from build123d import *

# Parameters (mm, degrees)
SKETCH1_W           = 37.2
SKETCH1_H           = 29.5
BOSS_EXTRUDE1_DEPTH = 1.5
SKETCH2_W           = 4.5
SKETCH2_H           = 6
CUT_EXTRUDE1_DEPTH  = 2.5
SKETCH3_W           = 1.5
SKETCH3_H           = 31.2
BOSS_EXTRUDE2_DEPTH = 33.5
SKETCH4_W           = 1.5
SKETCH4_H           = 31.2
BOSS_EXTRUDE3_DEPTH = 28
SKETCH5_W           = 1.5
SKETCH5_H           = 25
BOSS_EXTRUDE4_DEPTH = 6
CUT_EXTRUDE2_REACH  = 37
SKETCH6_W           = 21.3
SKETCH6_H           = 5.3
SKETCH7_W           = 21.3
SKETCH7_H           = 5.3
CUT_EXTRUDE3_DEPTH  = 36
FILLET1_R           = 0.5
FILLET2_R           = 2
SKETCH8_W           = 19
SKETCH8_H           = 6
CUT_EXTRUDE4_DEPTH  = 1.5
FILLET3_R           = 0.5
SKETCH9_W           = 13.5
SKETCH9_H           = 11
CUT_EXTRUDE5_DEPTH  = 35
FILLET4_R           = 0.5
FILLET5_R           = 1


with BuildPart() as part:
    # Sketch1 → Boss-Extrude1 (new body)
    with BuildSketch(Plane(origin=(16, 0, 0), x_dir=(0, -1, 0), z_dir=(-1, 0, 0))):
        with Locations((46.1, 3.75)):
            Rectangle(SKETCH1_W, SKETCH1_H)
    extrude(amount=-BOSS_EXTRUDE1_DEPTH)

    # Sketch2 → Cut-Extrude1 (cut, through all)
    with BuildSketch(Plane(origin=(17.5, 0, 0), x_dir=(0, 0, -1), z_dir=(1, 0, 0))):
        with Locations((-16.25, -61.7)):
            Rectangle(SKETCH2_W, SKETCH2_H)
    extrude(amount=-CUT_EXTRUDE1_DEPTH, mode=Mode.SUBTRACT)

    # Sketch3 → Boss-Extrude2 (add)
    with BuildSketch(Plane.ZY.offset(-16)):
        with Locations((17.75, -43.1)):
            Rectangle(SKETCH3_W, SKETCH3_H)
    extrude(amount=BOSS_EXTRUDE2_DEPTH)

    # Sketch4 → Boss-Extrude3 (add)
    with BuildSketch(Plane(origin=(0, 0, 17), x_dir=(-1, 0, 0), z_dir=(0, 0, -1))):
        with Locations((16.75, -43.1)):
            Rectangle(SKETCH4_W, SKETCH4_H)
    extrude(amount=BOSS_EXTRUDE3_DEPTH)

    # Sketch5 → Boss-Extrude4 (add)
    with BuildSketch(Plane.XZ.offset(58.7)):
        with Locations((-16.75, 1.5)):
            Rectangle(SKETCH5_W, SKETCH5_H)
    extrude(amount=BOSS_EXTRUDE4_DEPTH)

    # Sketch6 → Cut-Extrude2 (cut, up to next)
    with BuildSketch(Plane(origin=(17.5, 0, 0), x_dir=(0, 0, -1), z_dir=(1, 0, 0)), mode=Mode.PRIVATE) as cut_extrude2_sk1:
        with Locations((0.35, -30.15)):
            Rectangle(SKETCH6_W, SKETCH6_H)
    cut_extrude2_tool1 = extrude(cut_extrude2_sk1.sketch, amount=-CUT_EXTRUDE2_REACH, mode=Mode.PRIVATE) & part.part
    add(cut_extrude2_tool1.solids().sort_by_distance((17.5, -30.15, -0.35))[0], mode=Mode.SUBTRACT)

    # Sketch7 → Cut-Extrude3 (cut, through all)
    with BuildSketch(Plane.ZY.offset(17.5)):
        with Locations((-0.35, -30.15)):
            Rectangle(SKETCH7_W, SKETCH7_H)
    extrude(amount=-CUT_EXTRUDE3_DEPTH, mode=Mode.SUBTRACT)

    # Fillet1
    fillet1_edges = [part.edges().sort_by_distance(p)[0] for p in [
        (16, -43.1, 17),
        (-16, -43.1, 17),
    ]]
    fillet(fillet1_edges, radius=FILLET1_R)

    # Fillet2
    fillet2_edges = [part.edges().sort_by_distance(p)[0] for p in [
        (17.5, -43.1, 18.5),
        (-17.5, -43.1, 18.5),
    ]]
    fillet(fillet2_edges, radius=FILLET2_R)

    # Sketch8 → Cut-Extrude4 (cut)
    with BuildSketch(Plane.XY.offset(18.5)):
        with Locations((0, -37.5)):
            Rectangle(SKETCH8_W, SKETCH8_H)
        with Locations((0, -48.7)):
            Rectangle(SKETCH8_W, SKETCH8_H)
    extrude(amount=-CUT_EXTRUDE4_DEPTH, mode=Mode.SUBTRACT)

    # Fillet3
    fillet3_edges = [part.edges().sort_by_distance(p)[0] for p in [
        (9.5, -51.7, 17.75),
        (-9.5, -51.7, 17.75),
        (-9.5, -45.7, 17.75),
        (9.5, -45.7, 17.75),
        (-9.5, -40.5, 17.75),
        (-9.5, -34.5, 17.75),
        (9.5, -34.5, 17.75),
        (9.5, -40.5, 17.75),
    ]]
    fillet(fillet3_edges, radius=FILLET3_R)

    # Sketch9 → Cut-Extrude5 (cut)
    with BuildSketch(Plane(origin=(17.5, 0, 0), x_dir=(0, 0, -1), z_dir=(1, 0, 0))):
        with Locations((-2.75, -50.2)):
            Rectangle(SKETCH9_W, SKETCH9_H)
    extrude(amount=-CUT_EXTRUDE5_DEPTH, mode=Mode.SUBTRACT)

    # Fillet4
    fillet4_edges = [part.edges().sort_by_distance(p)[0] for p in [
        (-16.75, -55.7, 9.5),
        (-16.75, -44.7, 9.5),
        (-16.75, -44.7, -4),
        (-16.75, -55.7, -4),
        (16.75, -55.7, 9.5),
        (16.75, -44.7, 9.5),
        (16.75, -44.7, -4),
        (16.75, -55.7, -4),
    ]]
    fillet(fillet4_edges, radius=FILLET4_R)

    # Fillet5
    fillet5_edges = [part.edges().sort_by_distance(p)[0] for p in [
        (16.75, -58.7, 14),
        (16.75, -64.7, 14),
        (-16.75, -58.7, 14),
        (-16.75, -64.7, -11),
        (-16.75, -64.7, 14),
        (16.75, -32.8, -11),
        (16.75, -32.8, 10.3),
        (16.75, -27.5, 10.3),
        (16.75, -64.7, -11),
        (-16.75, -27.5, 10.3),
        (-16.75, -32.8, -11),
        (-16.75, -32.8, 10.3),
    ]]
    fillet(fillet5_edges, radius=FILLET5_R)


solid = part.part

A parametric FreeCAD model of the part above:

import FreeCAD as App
import Part
import Sketcher


def edges_at(feature, points):
    """Names of the edges that pass closest to the given points."""
    edges = feature.Shape.Edges
    near = lambda p: min(range(len(edges)), key=lambda i: edges[i].distToShape(Part.Vertex(*p))[0])
    return sorted({f"Edge{near(p) + 1}" for p in points})


def add_polygon(sketch, points):
    """Adds a closed chain of lines whose ends are joined by coincident constraints."""
    first, n = sketch.GeometryCount, len(points)
    for a, b in zip(points, points[1:] + points[:1]):
        sketch.addGeometry(Part.LineSegment(App.Vector(*a, 0), App.Vector(*b, 0)), False)
    for i in range(n):
        sketch.addConstraint(Sketcher.Constraint("Coincident", first + i, 2, first + (i + 1) % n, 1))

doc = App.newDocument("Part")
body = doc.addObject("PartDesign::Body", "Body")

# Sketch on YZ plane
sketch1 = body.newObject("Sketcher::SketchObject", "Sketch")
sketch1.AttachmentSupport = (doc.getObject("YZ_Plane"), [""])
sketch1.MapMode = "FlatFace"
sketch1.AttachmentOffset = App.Placement(App.Vector(0, 0, 16), App.Rotation())
add_polygon(sketch1, [(-28, 18), (-28, -11), (-65, -11), (-65, 18)])  # lines 0-3
sketch1.addConstraint([
    Sketcher.Constraint("Vertical", 0),
    Sketcher.Constraint("Horizontal", 1),
    Sketcher.Constraint("Vertical", 2),
    Sketcher.Constraint("Horizontal", 3),
    Sketcher.Constraint("DistanceX", 1, 2, 1, 1, 37.2),
    Sketcher.Constraint("DistanceY", 0, 2, 0, 1, 29.5),
    Sketcher.Constraint("DistanceY", 0, 2, -1, 1, 11.0),
    Sketcher.Constraint("DistanceX", 0, 2, -1, 1, 27.5),
])
pad1 = body.newObject("PartDesign::Pad", "Pad")
pad1.Profile = sketch1
pad1.Length = 1.5

# Sketch on YZ plane
sketch2 = body.newObject("Sketcher::SketchObject", "Sketch001")
sketch2.AttachmentSupport = (doc.getObject("YZ_Plane"), [""])
sketch2.MapMode = "FlatFace"
sketch2.AttachmentOffset = App.Placement(App.Vector(0, 0, 17.5), App.Rotation())
add_polygon(sketch2, [(-58.7, 18.5), (-64.7, 18.5), (-64.7, 14), (-58.7, 14)])  # lines 0-3
sketch2.addConstraint([
    Sketcher.Constraint("Horizontal", 0),
    Sketcher.Constraint("Vertical", 1),
    Sketcher.Constraint("Horizontal", 2),
    Sketcher.Constraint("Vertical", 3),
    Sketcher.Constraint("DistanceX", 0, 2, 0, 1, 6.0),
    Sketcher.Constraint("DistanceY", 1, 2, 1, 1, 4.5),
    Sketcher.Constraint("DistanceY", -1, 1, 1, 2, 14.0),
    Sketcher.Constraint("DistanceX", 0, 2, -1, 1, 64.7),
])
pocket1 = body.newObject("PartDesign::Pocket", "Pocket")
pocket1.Profile = sketch2
pocket1.Type = "ThroughAll"

# Sketch on YZ plane
sketch3 = body.newObject("Sketcher::SketchObject", "Sketch002")
sketch3.AttachmentSupport = (doc.getObject("YZ_Plane"), [""])
sketch3.MapMode = "FlatFace"
sketch3.AttachmentOffset = App.Placement(App.Vector(0, 0, 16), App.Rotation())
add_polygon(sketch3, [(-27.5, 17), (-58.7, 17), (-58.7, 18.5), (-27.5, 18.5)])  # lines 0-3
sketch3.addConstraint([
    Sketcher.Constraint("Horizontal", 0),
    Sketcher.Constraint("Vertical", 1),
    Sketcher.Constraint("Horizontal", 2),
    Sketcher.Constraint("Vertical", 3),
    Sketcher.Constraint("DistanceX", 0, 2, 0, 1, 31.2),
    Sketcher.Constraint("DistanceY", 1, 1, 1, 2, 1.5),
    Sketcher.Constraint("DistanceY", -1, 1, 0, 2, 17.0),
    Sketcher.Constraint("DistanceX", 0, 2, -1, 1, 58.7),
])
pad2 = body.newObject("PartDesign::Pad", "Pad001")
pad2.Profile = sketch3
pad2.Length = 33.5
pad2.Reversed = True

# Sketch on XY plane
sketch4 = body.newObject("Sketcher::SketchObject", "Sketch003")
sketch4.AttachmentSupport = (doc.getObject("XY_Plane"), [""])
sketch4.MapMode = "FlatFace"
sketch4.AttachmentOffset = App.Placement(App.Vector(0, 0, 17), App.Rotation())
add_polygon(sketch4, [(-16, -27.5), (-16, -58.7), (-17.5, -58.7), (-17.5, -27.5)])  # lines 0-3
sketch4.addConstraint([
    Sketcher.Constraint("Vertical", 0),
    Sketcher.Constraint("Horizontal", 1),
    Sketcher.Constraint("Vertical", 2),
    Sketcher.Constraint("Horizontal", 3),
    Sketcher.Constraint("DistanceX", 1, 2, 1, 1, 1.5),
    Sketcher.Constraint("DistanceY", 0, 2, 0, 1, 31.2),
    Sketcher.Constraint("DistanceX", 0, 2, -1, 1, 16.0),
    Sketcher.Constraint("DistanceY", 0, 2, -1, 1, 58.7),
])
pad3 = body.newObject("PartDesign::Pad", "Pad002")
pad3.Profile = sketch4
pad3.Length = 28
pad3.Reversed = True

# Sketch on XZ plane
sketch5 = body.newObject("Sketcher::SketchObject", "Sketch004")
sketch5.AttachmentSupport = (doc.getObject("XZ_Plane"), [""])
sketch5.MapMode = "FlatFace"
sketch5.AttachmentOffset = App.Placement(App.Vector(0, 0, 58.7), App.Rotation())
add_polygon(sketch5, [(-17.5, 14), (-17.5, -11), (-16, -11), (-16, 14)])  # lines 0-3
sketch5.addConstraint([
    Sketcher.Constraint("Vertical", 0),
    Sketcher.Constraint("Horizontal", 1),
    Sketcher.Constraint("Vertical", 2),
    Sketcher.Constraint("Horizontal", 3),
    Sketcher.Constraint("DistanceY", 0, 2, 0, 1, 25.0),
    Sketcher.Constraint("DistanceX", 1, 1, 1, 2, 1.5),
    Sketcher.Constraint("DistanceY", 0, 2, -1, 1, 11.0),
    Sketcher.Constraint("DistanceX", 1, 2, -1, 1, 16.0),
])
pad4 = body.newObject("PartDesign::Pad", "Pad003")
pad4.Profile = sketch5
pad4.Length = 6

# Sketch on YZ plane
sketch6 = body.newObject("Sketcher::SketchObject", "Sketch005")
sketch6.AttachmentSupport = (doc.getObject("YZ_Plane"), [""])
sketch6.MapMode = "FlatFace"
sketch6.AttachmentOffset = App.Placement(App.Vector(0, 0, 17.5), App.Rotation())
add_polygon(sketch6, [(-28, 10), (-33, 10), (-33, -11), (-28, -11)])  # lines 0-3
sketch6.addConstraint([
    Sketcher.Constraint("Horizontal", 0),
    Sketcher.Constraint("Vertical", 1),
    Sketcher.Constraint("Horizontal", 2),
    Sketcher.Constraint("Vertical", 3),
    Sketcher.Constraint("DistanceX", 0, 2, 0, 1, 5.3),
    Sketcher.Constraint("DistanceY", 1, 2, 1, 1, 21.3),
    Sketcher.Constraint("DistanceY", 1, 2, -1, 1, 11.0),
    Sketcher.Constraint("DistanceX", 0, 2, -1, 1, 32.8),
])
pocket2 = body.newObject("PartDesign::Pocket", "Pocket001")
pocket2.Profile = sketch6
pocket2.Type = "UpToFirst"

# Sketch on YZ plane
sketch7 = body.newObject("Sketcher::SketchObject", "Sketch006")
sketch7.AttachmentSupport = (doc.getObject("YZ_Plane"), [""])
sketch7.MapMode = "FlatFace"
sketch7.AttachmentOffset = App.Placement(App.Vector(0, 0, -17.5), App.Rotation())
add_polygon(sketch7, [(-28, -11), (-33, -11), (-33, 10), (-28, 10)])  # lines 0-3
sketch7.addConstraint([
    Sketcher.Constraint("Horizontal", 0),
    Sketcher.Constraint("Vertical", 1),
    Sketcher.Constraint("Horizontal", 2),
    Sketcher.Constraint("Vertical", 3),
    Sketcher.Constraint("DistanceX", 0, 2, 0, 1, 5.3),
    Sketcher.Constraint("DistanceY", 1, 1, 1, 2, 21.3),
    Sketcher.Constraint("DistanceY", 0, 2, -1, 1, 11.0),
    Sketcher.Constraint("DistanceX", 0, 2, -1, 1, 32.8),
])
pocket3 = body.newObject("PartDesign::Pocket", "Pocket002")
pocket3.Profile = sketch7
pocket3.Type = "ThroughAll"
pocket3.Reversed = True
doc.recompute()

fillet = body.newObject("PartDesign::Fillet", "Fillet")
fillet.Base = (pocket3, edges_at(pocket3, [(16, -43.1, 17), (-16, -43.1, 17)]))
fillet.Radius = 0.5
doc.recompute()

fillet2 = body.newObject("PartDesign::Fillet", "Fillet001")
fillet2.Base = (fillet, edges_at(fillet, [(17.5, -43.1, 18.5), (-17.5, -43.1, 18.5)]))
fillet2.Radius = 2

# Sketch on XY plane
sketch8 = body.newObject("Sketcher::SketchObject", "Sketch007")
sketch8.AttachmentSupport = (doc.getObject("XY_Plane"), [""])
sketch8.MapMode = "FlatFace"
sketch8.AttachmentOffset = App.Placement(App.Vector(0, 0, 18.5), App.Rotation())
add_polygon(sketch8, [(-10, -34), (-10, -40), (10, -40), (10, -34)])  # lines 0-3
add_polygon(sketch8, [(-10, -46), (-10, -52), (10, -52), (10, -46)])  # lines 4-7
sketch8.addConstraint([
    Sketcher.Constraint("Vertical", 0),
    Sketcher.Constraint("Horizontal", 1),
    Sketcher.Constraint("Vertical", 2),
    Sketcher.Constraint("Horizontal", 3),
    Sketcher.Constraint("Vertical", 4),
    Sketcher.Constraint("Horizontal", 5),
    Sketcher.Constraint("Vertical", 6),
    Sketcher.Constraint("Horizontal", 7),
    Sketcher.Constraint("Vertical", 3, 2, 4, 2),
    Sketcher.Constraint("Vertical", 2, 2, 5, 2),
    Sketcher.Constraint("Equal", 2, 4),
    Sketcher.Constraint("DistanceX", 1, 1, 1, 2, 19.0),
    Sketcher.Constraint("DistanceY", 0, 2, 0, 1, 6.0),
    Sketcher.Constraint("DistanceX", 0, 2, -1, 1, 9.5),
    Sketcher.Constraint("DistanceY", 0, 2, -1, 1, 40.5),
    Sketcher.Constraint("DistanceY", 4, 2, -1, 1, 51.7),
])
pocket4 = body.newObject("PartDesign::Pocket", "Pocket003")
pocket4.Profile = sketch8
pocket4.Length = 1.5
doc.recompute()

fillet3 = body.newObject("PartDesign::Fillet", "Fillet002")
fillet3.Base = (pocket4, edges_at(pocket4, [
    (9.5, -51.7, 17.75),
    (-9.5, -51.7, 17.75),
    (-9.5, -45.7, 17.75),
    (9.5, -45.7, 17.75),
    (-9.5, -40.5, 17.75),
    (-9.5, -34.5, 17.75),
    (9.5, -34.5, 17.75),
    (9.5, -40.5, 17.75),
]))
fillet3.Radius = 0.5

# Sketch on YZ plane
sketch9 = body.newObject("Sketcher::SketchObject", "Sketch008")
sketch9.AttachmentSupport = (doc.getObject("YZ_Plane"), [""])
sketch9.MapMode = "FlatFace"
sketch9.AttachmentOffset = App.Placement(App.Vector(0, 0, 17.5), App.Rotation())
add_polygon(sketch9, [(-45, 10), (-56, 10), (-56, -4), (-45, -4)])  # lines 0-3
sketch9.addConstraint([
    Sketcher.Constraint("Horizontal", 0),
    Sketcher.Constraint("Vertical", 1),
    Sketcher.Constraint("Horizontal", 2),
    Sketcher.Constraint("Vertical", 3),
    Sketcher.Constraint("DistanceX", 0, 2, 0, 1, 11.0),
    Sketcher.Constraint("DistanceY", 1, 2, 1, 1, 13.5),
    Sketcher.Constraint("DistanceY", 1, 2, -1, 1, 4.0),
    Sketcher.Constraint("DistanceX", 0, 2, -1, 1, 55.7),
])
pocket5 = body.newObject("PartDesign::Pocket", "Pocket004")
pocket5.Profile = sketch9
pocket5.Length = 35
doc.recompute()

fillet4 = body.newObject("PartDesign::Fillet", "Fillet003")
fillet4.Base = (pocket5, edges_at(pocket5, [
    (-16.75, -55.7, 9.5),
    (-16.75, -44.7, 9.5),
    (-16.75, -44.7, -4),
    (-16.75, -55.7, -4),
    (16.75, -55.7, 9.5),
    (16.75, -44.7, 9.5),
    (16.75, -44.7, -4),
    (16.75, -55.7, -4),
]))
fillet4.Radius = 0.5
doc.recompute()

fillet5 = body.newObject("PartDesign::Fillet", "Fillet004")
fillet5.Base = (fillet4, edges_at(fillet4, [
    (16.75, -58.7, 14),
    (16.75, -64.7, 14),
    (-16.75, -58.7, 14),
    (-16.75, -64.7, -11),
    (-16.75, -64.7, 14),
    (16.75, -32.8, -11),
    (16.75, -32.8, 10.3),
    (16.75, -27.5, 10.3),
    (16.75, -64.7, -11),
    (-16.75, -27.5, 10.3),
    (-16.75, -32.8, -11),
    (-16.75, -32.8, 10.3),
]))
fillet5.Radius = 1

doc.recompute()
